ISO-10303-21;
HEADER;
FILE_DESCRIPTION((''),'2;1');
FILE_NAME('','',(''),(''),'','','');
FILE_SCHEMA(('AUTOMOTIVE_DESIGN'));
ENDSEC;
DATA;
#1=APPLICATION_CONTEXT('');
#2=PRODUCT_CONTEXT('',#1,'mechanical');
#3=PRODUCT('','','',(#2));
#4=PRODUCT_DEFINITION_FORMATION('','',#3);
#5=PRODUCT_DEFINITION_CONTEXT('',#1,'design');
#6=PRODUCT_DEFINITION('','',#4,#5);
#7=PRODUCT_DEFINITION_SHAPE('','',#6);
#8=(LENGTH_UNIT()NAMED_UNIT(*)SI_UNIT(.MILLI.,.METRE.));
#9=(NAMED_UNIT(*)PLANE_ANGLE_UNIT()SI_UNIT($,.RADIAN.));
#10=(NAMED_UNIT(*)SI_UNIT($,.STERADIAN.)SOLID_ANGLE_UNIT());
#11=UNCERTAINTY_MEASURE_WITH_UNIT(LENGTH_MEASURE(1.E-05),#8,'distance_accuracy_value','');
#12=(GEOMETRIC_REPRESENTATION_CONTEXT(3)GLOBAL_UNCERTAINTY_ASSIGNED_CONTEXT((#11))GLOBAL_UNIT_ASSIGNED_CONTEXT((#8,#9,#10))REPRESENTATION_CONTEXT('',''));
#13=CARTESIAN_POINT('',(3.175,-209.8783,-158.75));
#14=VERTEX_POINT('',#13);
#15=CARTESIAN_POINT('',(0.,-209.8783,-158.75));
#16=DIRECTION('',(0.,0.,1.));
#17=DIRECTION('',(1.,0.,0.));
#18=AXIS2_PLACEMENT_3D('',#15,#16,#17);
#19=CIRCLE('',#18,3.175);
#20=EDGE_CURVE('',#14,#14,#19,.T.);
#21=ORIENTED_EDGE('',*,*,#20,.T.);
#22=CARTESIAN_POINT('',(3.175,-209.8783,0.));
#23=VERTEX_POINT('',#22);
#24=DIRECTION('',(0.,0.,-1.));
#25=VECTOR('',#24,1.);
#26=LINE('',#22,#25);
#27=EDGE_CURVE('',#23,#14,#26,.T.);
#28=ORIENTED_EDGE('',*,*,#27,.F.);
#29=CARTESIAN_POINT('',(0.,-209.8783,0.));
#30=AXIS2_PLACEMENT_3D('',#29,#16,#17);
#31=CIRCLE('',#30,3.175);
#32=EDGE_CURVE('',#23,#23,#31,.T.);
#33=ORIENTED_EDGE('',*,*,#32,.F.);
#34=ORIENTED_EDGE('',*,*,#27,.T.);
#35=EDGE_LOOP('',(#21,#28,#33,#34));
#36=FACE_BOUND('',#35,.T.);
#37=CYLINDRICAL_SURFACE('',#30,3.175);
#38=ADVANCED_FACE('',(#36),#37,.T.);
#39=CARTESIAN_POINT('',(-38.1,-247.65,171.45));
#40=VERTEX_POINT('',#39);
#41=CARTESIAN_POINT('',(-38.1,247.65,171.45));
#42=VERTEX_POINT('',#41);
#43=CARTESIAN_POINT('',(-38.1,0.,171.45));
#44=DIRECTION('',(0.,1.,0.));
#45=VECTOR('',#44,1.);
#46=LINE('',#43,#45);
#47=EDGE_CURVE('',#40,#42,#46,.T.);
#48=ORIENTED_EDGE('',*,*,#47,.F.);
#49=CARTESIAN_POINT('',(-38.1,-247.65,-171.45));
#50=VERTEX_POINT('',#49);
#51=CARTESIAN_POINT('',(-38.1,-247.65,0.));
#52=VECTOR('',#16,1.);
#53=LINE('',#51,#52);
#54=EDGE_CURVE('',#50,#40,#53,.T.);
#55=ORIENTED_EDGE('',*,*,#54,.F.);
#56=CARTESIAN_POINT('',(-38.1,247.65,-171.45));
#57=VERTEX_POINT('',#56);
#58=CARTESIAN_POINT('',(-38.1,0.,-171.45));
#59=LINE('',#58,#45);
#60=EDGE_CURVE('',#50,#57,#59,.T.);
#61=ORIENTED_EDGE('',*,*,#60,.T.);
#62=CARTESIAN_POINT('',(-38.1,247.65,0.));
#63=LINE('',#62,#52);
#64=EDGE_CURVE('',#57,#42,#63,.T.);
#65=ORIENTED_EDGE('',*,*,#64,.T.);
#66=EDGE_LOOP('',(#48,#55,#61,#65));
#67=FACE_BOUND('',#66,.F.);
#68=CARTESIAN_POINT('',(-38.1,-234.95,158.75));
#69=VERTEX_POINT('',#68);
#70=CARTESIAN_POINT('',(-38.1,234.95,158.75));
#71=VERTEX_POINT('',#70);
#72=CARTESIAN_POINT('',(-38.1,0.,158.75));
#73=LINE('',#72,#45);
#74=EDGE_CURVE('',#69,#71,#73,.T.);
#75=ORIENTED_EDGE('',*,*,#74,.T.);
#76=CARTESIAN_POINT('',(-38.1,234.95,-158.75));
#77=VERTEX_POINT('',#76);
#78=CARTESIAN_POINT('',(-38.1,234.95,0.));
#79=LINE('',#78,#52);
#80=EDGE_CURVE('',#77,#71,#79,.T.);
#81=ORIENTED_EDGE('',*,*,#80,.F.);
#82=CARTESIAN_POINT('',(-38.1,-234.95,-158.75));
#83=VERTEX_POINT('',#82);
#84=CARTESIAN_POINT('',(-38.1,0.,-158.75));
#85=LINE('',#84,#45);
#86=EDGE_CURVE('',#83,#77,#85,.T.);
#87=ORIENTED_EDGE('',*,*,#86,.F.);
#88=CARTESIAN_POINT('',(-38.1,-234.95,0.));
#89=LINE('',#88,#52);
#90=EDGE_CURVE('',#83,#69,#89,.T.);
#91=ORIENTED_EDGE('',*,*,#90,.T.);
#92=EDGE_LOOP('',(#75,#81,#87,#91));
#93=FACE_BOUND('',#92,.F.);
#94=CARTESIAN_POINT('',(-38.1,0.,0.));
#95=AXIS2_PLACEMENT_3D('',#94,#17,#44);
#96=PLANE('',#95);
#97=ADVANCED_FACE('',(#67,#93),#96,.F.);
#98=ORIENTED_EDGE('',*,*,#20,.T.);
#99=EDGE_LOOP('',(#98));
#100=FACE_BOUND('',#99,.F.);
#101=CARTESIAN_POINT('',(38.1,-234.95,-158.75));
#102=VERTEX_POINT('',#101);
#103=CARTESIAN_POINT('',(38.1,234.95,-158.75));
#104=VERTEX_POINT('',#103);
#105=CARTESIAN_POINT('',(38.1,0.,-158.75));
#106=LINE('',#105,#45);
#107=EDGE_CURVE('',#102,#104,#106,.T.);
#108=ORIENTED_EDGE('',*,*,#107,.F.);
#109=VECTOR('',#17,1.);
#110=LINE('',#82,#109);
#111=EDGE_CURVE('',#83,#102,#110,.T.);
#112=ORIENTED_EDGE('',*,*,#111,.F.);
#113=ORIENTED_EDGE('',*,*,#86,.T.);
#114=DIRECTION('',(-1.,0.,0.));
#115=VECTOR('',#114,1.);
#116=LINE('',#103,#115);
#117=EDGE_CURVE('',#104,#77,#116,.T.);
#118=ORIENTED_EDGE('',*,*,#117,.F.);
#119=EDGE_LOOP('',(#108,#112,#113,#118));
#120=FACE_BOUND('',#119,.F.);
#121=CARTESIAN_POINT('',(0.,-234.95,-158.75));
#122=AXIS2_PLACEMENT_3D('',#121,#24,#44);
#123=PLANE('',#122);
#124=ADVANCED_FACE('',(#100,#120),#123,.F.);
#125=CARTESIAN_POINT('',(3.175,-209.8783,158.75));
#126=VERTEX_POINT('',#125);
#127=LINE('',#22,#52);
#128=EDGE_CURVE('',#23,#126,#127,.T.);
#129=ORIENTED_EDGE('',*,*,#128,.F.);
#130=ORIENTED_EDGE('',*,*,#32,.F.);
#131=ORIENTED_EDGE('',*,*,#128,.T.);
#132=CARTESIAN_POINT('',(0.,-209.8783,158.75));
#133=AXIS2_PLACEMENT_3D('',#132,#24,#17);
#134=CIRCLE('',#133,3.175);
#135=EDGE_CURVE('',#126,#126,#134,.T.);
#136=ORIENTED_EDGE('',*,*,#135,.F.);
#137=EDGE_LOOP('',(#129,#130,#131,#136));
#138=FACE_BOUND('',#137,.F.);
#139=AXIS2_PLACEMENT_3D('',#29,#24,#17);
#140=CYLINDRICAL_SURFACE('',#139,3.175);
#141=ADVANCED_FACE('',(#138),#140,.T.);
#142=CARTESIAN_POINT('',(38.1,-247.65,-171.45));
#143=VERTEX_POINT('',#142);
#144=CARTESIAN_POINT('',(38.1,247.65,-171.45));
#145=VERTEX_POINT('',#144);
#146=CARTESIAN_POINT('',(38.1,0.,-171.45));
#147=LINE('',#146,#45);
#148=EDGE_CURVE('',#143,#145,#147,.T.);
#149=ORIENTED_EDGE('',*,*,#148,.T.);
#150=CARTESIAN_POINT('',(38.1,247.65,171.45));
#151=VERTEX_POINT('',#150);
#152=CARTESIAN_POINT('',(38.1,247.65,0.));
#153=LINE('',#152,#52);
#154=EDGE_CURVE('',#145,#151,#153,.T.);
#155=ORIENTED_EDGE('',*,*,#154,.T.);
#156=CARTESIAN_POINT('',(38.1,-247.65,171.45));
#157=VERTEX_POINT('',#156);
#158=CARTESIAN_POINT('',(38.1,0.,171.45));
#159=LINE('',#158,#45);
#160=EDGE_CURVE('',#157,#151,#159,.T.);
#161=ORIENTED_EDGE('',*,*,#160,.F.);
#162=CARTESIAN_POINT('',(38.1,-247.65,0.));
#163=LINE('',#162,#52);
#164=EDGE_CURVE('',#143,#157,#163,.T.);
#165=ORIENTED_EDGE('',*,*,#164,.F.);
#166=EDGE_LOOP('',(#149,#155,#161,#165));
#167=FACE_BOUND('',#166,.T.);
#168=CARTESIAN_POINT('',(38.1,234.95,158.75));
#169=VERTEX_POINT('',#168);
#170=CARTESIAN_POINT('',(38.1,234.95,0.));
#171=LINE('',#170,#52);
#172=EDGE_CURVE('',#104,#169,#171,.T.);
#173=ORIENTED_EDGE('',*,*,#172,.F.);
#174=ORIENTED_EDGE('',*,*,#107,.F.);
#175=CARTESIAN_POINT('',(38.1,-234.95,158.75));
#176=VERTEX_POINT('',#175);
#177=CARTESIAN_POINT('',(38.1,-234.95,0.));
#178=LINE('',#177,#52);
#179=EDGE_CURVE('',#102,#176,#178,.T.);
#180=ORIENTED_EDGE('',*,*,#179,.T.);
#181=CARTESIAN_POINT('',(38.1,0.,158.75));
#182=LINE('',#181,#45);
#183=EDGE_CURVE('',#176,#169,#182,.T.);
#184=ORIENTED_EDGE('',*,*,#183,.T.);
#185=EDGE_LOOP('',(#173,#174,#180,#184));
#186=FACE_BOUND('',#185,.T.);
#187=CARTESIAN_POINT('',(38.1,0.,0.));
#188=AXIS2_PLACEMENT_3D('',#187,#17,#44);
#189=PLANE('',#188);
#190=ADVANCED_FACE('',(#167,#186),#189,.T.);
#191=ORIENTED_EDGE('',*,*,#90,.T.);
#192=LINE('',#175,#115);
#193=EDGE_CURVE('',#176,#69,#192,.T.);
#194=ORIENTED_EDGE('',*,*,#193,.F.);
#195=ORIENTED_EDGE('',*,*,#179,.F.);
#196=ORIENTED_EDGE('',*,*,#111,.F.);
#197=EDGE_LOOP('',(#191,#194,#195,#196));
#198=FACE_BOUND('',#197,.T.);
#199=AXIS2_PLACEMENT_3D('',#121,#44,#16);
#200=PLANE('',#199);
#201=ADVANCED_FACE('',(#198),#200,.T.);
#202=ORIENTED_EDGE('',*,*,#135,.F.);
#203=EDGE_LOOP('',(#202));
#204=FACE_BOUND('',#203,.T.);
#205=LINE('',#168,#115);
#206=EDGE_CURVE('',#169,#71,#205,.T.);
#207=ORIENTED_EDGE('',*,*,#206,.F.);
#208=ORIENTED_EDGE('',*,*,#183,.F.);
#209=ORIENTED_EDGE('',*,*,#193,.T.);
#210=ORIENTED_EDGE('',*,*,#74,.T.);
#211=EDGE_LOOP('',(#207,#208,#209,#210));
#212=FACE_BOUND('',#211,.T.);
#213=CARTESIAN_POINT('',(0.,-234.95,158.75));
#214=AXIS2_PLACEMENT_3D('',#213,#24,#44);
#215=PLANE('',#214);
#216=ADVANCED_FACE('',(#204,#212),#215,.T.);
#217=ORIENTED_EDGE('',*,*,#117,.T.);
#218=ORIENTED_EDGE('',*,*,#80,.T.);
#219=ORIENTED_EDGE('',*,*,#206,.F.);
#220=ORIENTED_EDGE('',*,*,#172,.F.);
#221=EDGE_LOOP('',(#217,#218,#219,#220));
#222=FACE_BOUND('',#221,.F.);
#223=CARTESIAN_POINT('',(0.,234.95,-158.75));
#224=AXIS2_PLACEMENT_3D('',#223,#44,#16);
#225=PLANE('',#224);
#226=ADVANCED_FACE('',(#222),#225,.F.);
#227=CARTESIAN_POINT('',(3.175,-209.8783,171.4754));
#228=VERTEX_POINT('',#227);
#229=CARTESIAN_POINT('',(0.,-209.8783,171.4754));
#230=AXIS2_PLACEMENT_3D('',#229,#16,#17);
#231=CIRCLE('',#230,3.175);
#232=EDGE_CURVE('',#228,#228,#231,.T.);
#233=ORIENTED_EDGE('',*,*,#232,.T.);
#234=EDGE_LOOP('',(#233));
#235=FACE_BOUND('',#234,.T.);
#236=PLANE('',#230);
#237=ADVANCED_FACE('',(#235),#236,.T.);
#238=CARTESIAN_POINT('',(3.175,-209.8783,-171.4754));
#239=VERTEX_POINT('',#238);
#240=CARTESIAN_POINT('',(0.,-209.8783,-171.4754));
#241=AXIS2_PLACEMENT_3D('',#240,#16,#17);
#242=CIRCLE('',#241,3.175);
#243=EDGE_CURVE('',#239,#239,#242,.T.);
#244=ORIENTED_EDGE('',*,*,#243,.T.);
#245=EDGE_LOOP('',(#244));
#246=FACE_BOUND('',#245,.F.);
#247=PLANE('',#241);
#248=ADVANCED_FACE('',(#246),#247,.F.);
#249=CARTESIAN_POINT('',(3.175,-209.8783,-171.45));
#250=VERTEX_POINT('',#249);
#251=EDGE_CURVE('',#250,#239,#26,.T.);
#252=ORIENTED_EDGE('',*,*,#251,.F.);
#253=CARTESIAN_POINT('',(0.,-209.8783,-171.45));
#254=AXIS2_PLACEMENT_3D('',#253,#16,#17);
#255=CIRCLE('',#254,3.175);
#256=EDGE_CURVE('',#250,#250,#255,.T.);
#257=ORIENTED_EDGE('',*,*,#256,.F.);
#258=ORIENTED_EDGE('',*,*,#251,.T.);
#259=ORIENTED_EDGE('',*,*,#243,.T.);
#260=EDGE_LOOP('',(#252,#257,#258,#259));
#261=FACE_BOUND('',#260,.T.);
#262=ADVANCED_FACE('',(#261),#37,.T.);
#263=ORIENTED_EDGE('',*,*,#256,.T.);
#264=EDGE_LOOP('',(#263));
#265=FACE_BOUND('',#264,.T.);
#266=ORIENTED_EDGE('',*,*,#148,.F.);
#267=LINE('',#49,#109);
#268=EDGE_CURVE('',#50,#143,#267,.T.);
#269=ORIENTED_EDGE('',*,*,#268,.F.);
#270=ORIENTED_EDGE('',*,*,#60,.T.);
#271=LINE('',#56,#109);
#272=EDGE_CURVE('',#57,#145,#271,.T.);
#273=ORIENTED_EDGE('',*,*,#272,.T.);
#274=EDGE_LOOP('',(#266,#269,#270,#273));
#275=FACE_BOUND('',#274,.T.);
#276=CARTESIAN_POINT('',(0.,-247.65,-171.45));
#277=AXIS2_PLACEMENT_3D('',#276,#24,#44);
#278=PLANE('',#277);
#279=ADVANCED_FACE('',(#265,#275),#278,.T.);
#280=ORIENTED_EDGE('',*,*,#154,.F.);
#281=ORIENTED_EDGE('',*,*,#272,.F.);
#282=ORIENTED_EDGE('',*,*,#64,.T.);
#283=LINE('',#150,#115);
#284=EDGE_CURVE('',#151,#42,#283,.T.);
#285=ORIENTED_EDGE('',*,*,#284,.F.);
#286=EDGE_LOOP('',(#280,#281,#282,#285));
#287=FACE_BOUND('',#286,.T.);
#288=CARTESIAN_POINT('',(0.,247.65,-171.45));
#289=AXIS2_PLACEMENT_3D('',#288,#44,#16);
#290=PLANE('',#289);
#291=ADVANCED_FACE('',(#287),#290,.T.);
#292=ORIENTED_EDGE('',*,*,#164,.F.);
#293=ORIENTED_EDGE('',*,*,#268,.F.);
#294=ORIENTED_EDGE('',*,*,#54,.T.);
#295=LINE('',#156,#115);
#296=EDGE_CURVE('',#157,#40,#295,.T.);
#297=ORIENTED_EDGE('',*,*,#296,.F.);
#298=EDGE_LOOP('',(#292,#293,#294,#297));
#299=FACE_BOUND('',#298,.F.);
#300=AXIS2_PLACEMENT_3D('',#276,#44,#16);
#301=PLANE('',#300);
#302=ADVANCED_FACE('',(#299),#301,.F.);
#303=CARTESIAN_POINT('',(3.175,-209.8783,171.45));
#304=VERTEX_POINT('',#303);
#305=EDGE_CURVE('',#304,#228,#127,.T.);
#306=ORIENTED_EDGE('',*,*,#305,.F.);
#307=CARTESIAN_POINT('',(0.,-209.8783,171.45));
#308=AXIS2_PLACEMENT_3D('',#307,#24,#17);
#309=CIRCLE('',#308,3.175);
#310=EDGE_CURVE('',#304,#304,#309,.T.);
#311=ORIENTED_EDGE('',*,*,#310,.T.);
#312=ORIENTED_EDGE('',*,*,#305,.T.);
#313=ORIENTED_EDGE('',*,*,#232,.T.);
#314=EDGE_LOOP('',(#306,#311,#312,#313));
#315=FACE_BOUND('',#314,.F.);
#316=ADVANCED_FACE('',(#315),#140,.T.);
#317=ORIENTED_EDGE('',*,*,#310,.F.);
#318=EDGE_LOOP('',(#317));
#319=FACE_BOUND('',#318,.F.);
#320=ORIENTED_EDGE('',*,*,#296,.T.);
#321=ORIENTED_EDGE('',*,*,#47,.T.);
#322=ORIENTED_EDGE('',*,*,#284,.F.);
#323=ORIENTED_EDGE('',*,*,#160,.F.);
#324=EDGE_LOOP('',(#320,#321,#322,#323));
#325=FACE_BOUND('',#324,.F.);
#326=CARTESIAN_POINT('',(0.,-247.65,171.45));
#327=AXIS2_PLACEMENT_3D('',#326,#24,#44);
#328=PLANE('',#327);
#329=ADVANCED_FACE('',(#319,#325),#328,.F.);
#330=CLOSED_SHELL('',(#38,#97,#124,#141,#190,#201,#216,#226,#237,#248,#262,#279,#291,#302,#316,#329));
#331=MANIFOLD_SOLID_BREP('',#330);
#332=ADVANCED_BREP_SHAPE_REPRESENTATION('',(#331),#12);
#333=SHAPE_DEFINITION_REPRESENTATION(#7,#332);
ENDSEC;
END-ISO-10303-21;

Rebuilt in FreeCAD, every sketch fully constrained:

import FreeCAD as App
import Part
import Sketcher
Q = App.Units.Quantity


def add_polygon(sketch, points):
    """Adds a closed chain of lines whose ends are joined by coincident constraints."""
    first, n = sketch.GeometryCount, len(points)
    for a, b in zip(points, points[1:] + points[:1]):
        sketch.addGeometry(Part.LineSegment(App.Vector(*a, 0), App.Vector(*b, 0)), False)
    for i in range(n):
        sketch.addConstraint(Sketcher.Constraint("Coincident", first + i, 2, first + (i + 1) % n, 1))

doc = App.newDocument("Part")
body = doc.addObject("PartDesign::Body", "Body")

sketch1 = body.newObject("Sketcher::SketchObject", "Sketch")
sketch1.AttachmentSupport = (doc.getObject("YZ_Plane"), [""])
sketch1.MapMode = "FlatFace"
add_polygon(sketch1, [(-248, 171), (-248, -171), (248, -171), (248, 171)])
add_polygon(sketch1, [(235, -159), (-235, -159), (-235, 159), (235, 159)])
sketch1.addConstraint(Sketcher.Constraint("Vertical", 0))
sketch1.addConstraint(Sketcher.Constraint("Horizontal", 1))
sketch1.addConstraint(Sketcher.Constraint("Vertical", 2))
sketch1.addConstraint(Sketcher.Constraint("Horizontal", 3))
sketch1.addConstraint(Sketcher.Constraint("Horizontal", 4))
sketch1.addConstraint(Sketcher.Constraint("Vertical", 5))
sketch1.addConstraint(Sketcher.Constraint("Horizontal", 6))
sketch1.addConstraint(Sketcher.Constraint("Vertical", 7))
sketch1.addConstraint(Sketcher.Constraint("Symmetric", 0, 2, 2, 2, -1, 1))
sketch1.addConstraint(Sketcher.Constraint("Symmetric", 4, 2, 6, 2, -1, 1))
sketch1.addConstraint(Sketcher.Constraint("DistanceX", 1, 1, 1, 2, Q("19.5 in")))
sketch1.addConstraint(Sketcher.Constraint("DistanceX", 4, 2, 4, 1, Q("18.5 in")))
sketch1.addConstraint(Sketcher.Constraint("DistanceY", 0, 2, 0, 1, Q("13.5 in")))
sketch1.addConstraint(Sketcher.Constraint("DistanceY", 5, 1, 5, 2, Q("12.5 in")))
pad1 = body.newObject("PartDesign::Pad", "Pad")
pad1.Profile = sketch1
pad1.Length = Q("3 in")
pad1.Midplane = True

sketch2 = body.newObject("Sketcher::SketchObject", "Sketch001")
sketch2.AttachmentSupport = (doc.getObject("XY_Plane"), [""])
sketch2.MapMode = "FlatFace"
sketch2.addGeometry(Part.Circle(App.Vector(0, -209.9, 0), App.Vector(0, 0, 1), 3.2), False)
sketch2.addConstraint(Sketcher.Constraint("PointOnObject", 0, 3, -2))
sketch2.addConstraint(Sketcher.Constraint("Diameter", 0, Q("0.25 in")))
sketch2.addConstraint(Sketcher.Constraint("DistanceY", 0, 3, -1, 1, 209.8783))
pad2 = body.newObject("PartDesign::Pad", "Pad001")
pad2.Profile = sketch2
pad2.Type = "TwoLengths"
pad2.Length = Q("6.751 in")
pad2.Length2 = Q("6.751 in")

doc.recompute()
